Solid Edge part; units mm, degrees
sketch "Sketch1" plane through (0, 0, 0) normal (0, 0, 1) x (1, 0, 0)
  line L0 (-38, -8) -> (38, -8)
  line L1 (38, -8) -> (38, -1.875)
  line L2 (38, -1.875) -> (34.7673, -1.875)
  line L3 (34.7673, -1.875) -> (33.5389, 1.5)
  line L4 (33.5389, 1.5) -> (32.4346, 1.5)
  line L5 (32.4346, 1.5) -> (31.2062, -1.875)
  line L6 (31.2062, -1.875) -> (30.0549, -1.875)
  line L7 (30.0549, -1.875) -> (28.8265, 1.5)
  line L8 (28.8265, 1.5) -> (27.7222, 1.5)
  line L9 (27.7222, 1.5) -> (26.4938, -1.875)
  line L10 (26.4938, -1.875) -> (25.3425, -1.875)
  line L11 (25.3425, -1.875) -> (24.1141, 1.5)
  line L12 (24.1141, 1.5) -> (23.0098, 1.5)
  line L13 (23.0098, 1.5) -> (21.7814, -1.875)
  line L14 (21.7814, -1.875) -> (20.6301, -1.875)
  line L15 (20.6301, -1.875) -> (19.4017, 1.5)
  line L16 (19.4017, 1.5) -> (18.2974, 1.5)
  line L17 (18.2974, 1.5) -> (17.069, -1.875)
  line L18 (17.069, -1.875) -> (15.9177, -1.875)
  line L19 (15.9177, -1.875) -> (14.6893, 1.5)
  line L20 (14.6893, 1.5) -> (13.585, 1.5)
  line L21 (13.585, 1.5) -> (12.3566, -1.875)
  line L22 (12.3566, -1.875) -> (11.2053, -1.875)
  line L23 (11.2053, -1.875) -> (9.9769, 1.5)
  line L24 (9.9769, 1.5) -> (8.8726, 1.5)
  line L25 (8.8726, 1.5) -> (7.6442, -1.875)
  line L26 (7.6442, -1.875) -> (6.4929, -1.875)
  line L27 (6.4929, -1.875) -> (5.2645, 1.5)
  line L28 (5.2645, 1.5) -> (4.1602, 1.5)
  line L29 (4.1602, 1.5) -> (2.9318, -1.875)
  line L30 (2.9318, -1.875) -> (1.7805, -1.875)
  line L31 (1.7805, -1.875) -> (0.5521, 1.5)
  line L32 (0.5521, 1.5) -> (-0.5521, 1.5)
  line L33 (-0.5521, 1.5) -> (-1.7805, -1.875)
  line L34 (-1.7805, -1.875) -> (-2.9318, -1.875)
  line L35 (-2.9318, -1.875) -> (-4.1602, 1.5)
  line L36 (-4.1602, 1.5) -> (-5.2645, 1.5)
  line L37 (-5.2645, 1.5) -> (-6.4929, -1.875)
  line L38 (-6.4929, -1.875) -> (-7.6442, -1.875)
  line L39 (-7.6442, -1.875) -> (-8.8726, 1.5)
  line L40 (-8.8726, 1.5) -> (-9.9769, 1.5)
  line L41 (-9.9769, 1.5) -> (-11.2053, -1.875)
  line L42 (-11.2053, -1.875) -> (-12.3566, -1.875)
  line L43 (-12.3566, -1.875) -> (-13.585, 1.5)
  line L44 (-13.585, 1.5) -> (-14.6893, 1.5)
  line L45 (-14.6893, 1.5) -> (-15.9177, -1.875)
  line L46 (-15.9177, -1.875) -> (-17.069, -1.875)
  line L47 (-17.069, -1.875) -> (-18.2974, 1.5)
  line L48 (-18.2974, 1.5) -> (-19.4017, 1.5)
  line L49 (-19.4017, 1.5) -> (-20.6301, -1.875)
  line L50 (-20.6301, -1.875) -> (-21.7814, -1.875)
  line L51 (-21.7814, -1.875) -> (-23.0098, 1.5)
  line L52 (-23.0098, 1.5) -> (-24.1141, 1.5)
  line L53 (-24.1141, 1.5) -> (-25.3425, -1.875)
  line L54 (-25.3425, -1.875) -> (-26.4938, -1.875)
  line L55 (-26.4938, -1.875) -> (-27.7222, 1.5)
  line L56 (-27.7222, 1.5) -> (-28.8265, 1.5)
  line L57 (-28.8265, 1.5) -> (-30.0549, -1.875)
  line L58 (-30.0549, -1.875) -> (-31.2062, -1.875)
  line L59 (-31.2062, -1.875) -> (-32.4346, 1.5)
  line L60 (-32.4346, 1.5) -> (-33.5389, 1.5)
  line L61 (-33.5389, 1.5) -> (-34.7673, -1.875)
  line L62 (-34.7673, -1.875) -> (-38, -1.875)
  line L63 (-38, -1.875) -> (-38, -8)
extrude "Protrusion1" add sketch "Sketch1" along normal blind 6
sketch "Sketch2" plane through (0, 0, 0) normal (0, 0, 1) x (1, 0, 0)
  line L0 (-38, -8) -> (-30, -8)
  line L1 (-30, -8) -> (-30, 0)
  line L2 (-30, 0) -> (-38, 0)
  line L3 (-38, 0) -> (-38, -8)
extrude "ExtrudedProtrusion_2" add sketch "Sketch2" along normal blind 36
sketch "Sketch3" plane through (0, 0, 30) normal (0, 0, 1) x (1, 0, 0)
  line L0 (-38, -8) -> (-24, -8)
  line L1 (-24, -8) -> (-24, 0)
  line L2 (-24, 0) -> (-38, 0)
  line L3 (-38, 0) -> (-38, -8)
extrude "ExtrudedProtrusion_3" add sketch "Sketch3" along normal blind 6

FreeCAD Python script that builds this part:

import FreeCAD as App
import Part
import Sketcher
Q = App.Units.Quantity

doc = App.newDocument("Part")
body = doc.addObject("PartDesign::Body", "Body")

# Sketch on XY plane
sketch1 = doc.addObject("Sketcher::SketchObject", "Sketch")
body.addObject(sketch1)
sketch1.AttachmentSupport = (doc.XY_Plane, [""])
sketch1.MapMode = "FlatFace"
sketch1.addGeometry([
    Part.LineSegment(App.Vector(-38, -1.9, 0), App.Vector(-38, -8, 0)),  # 0
    Part.LineSegment(App.Vector(-38, -8, 0), App.Vector(38, -8, 0)),  # 1
    Part.LineSegment(App.Vector(38, -8, 0), App.Vector(38, -1.9, 0)),  # 2
    Part.LineSegment(App.Vector(38, -1.9, 0), App.Vector(34.8, -1.9, 0)),  # 3
    Part.LineSegment(App.Vector(34.8, -1.9, 0), App.Vector(33.5, 1.5, 0)),  # 4
    Part.LineSegment(App.Vector(33.5, 1.5, 0), App.Vector(32.4, 1.5, 0)),  # 5
    Part.LineSegment(App.Vector(32.4, 1.5, 0), App.Vector(31.2, -1.9, 0)),  # 6
    Part.LineSegment(App.Vector(31.2, -1.9, 0), App.Vector(30.1, -1.9, 0)),  # 7
    Part.LineSegment(App.Vector(30.1, -1.9, 0), App.Vector(28.8, 1.5, 0)),  # 8
    Part.LineSegment(App.Vector(28.8, 1.5, 0), App.Vector(27.7, 1.5, 0)),  # 9
    Part.LineSegment(App.Vector(27.7, 1.5, 0), App.Vector(26.5, -1.9, 0)),  # 10
    Part.LineSegment(App.Vector(26.5, -1.9, 0), App.Vector(25.3, -1.9, 0)),  # 11
    Part.LineSegment(App.Vector(25.3, -1.9, 0), App.Vector(24.1, 1.5, 0)),  # 12
    Part.LineSegment(App.Vector(24.1, 1.5, 0), App.Vector(23, 1.5, 0)),  # 13
    Part.LineSegment(App.Vector(23, 1.5, 0), App.Vector(21.8, -1.9, 0)),  # 14
    Part.LineSegment(App.Vector(21.8, -1.9, 0), App.Vector(20.6, -1.9, 0)),  # 15
    Part.LineSegment(App.Vector(20.6, -1.9, 0), App.Vector(19.4, 1.5, 0)),  # 16
    Part.LineSegment(App.Vector(19.4, 1.5, 0), App.Vector(18.3, 1.5, 0)),  # 17
    Part.LineSegment(App.Vector(18.3, 1.5, 0), App.Vector(17.1, -1.9, 0)),  # 18
    Part.LineSegment(App.Vector(17.1, -1.9, 0), App.Vector(15.9, -1.9, 0)),  # 19
    Part.LineSegment(App.Vector(15.9, -1.9, 0), App.Vector(14.7, 1.5, 0)),  # 20
    Part.LineSegment(App.Vector(14.7, 1.5, 0), App.Vector(13.6, 1.5, 0)),  # 21
    Part.LineSegment(App.Vector(13.6, 1.5, 0), App.Vector(12.4, -1.9, 0)),  # 22
    Part.LineSegment(App.Vector(12.4, -1.9, 0), App.Vector(11.2, -1.9, 0)),  # 23
    Part.LineSegment(App.Vector(11.2, -1.9, 0), App.Vector(10, 1.5, 0)),  # 24
    Part.LineSegment(App.Vector(10, 1.5, 0), App.Vector(8.9, 1.5, 0)),  # 25
    Part.LineSegment(App.Vector(8.9, 1.5, 0), App.Vector(7.6, -1.9, 0)),  # 26
    Part.LineSegment(App.Vector(7.6, -1.9, 0), App.Vector(6.5, -1.9, 0)),  # 27
    Part.LineSegment(App.Vector(6.5, -1.9, 0), App.Vector(5.3, 1.5, 0)),  # 28
    Part.LineSegment(App.Vector(5.3, 1.5, 0), App.Vector(4.2, 1.5, 0)),  # 29
    Part.LineSegment(App.Vector(4.2, 1.5, 0), App.Vector(2.9, -1.9, 0)),  # 30
    Part.LineSegment(App.Vector(2.9, -1.9, 0), App.Vector(1.8, -1.9, 0)),  # 31
    Part.LineSegment(App.Vector(1.8, -1.9, 0), App.Vector(0.6, 1.5, 0)),  # 32
    Part.LineSegment(App.Vector(0.6, 1.5, 0), App.Vector(-0.6, 1.5, 0)),  # 33
    Part.LineSegment(App.Vector(-0.6, 1.5, 0), App.Vector(-1.8, -1.9, 0)),  # 34
    Part.LineSegment(App.Vector(-1.8, -1.9, 0), App.Vector(-2.9, -1.9, 0)),  # 35
    Part.LineSegment(App.Vector(-2.9, -1.9, 0), App.Vector(-4.2, 1.5, 0)),  # 36
    Part.LineSegment(App.Vector(-4.2, 1.5, 0), App.Vector(-5.3, 1.5, 0)),  # 37
    Part.LineSegment(App.Vector(-5.3, 1.5, 0), App.Vector(-6.5, -1.9, 0)),  # 38
    Part.LineSegment(App.Vector(-6.5, -1.9, 0), App.Vector(-7.6, -1.9, 0)),  # 39
    Part.LineSegment(App.Vector(-7.6, -1.9, 0), App.Vector(-8.9, 1.5, 0)),  # 40
    Part.LineSegment(App.Vector(-8.9, 1.5, 0), App.Vector(-10, 1.5, 0)),  # 41
    Part.LineSegment(App.Vector(-10, 1.5, 0), App.Vector(-11.2, -1.9, 0)),  # 42
    Part.LineSegment(App.Vector(-11.2, -1.9, 0), App.Vector(-12.4, -1.9, 0)),  # 43
    Part.LineSegment(App.Vector(-12.4, -1.9, 0), App.Vector(-13.6, 1.5, 0)),  # 44
    Part.LineSegment(App.Vector(-13.6, 1.5, 0), App.Vector(-14.7, 1.5, 0)),  # 45
    Part.LineSegment(App.Vector(-14.7, 1.5, 0), App.Vector(-15.9, -1.9, 0)),  # 46
    Part.LineSegment(App.Vector(-15.9, -1.9, 0), App.Vector(-17.1, -1.9, 0)),  # 47
    Part.LineSegment(App.Vector(-17.1, -1.9, 0), App.Vector(-18.3, 1.5, 0)),  # 48
    Part.LineSegment(App.Vector(-18.3, 1.5, 0), App.Vector(-19.4, 1.5, 0)),  # 49
    Part.LineSegment(App.Vector(-19.4, 1.5, 0), App.Vector(-20.6, -1.9, 0)),  # 50
    Part.LineSegment(App.Vector(-20.6, -1.9, 0), App.Vector(-21.8, -1.9, 0)),  # 51
    Part.LineSegment(App.Vector(-21.8, -1.9, 0), App.Vector(-23, 1.5, 0)),  # 52
    Part.LineSegment(App.Vector(-23, 1.5, 0), App.Vector(-24.1, 1.5, 0)),  # 53
    Part.LineSegment(App.Vector(-24.1, 1.5, 0), App.Vector(-25.3, -1.9, 0)),  # 54
    Part.LineSegment(App.Vector(-25.3, -1.9, 0), App.Vector(-26.5, -1.9, 0)),  # 55
    Part.LineSegment(App.Vector(-26.5, -1.9, 0), App.Vector(-27.7, 1.5, 0)),  # 56
    Part.LineSegment(App.Vector(-27.7, 1.5, 0), App.Vector(-28.8, 1.5, 0)),  # 57
    Part.LineSegment(App.Vector(-28.8, 1.5, 0), App.Vector(-30.1, -1.9, 0)),  # 58
    Part.LineSegment(App.Vector(-30.1, -1.9, 0), App.Vector(-31.2, -1.9, 0)),  # 59
    Part.LineSegment(App.Vector(-31.2, -1.9, 0), App.Vector(-32.4, 1.5, 0)),  # 60
    Part.LineSegment(App.Vector(-32.4, 1.5, 0), App.Vector(-33.5, 1.5, 0)),  # 61
    Part.LineSegment(App.Vector(-33.5, 1.5, 0), App.Vector(-34.8, -1.9, 0)),  # 62
    Part.LineSegment(App.Vector(-34.8, -1.9, 0), App.Vector(-38, -1.9, 0)),  # 63
], False)
sketch1.addConstraint([
    Sketcher.Constraint("Coincident", 0, 2, 1, 1),
    Sketcher.Constraint("Coincident", 1, 2, 2, 1),
    Sketcher.Constraint("Coincident", 2, 2, 3, 1),
    Sketcher.Constraint("Coincident", 3, 2, 4, 1),
    Sketcher.Constraint("Coincident", 4, 2, 5, 1),
    Sketcher.Constraint("Coincident", 5, 2, 6, 1),
    Sketcher.Constraint("Coincident", 6, 2, 7, 1),
    Sketcher.Constraint("Coincident", 7, 2, 8, 1),
    Sketcher.Constraint("Coincident", 8, 2, 9, 1),
    Sketcher.Constraint("Coincident", 9, 2, 10, 1),
    Sketcher.Constraint("Coincident", 10, 2, 11, 1),
    Sketcher.Constraint("Coincident", 11, 2, 12, 1),
    Sketcher.Constraint("Coincident", 12, 2, 13, 1),
    Sketcher.Constraint("Coincident", 13, 2, 14, 1),
    Sketcher.Constraint("Coincident", 14, 2, 15, 1),
    Sketcher.Constraint("Coincident", 15, 2, 16, 1),
    Sketcher.Constraint("Coincident", 16, 2, 17, 1),
    Sketcher.Constraint("Coincident", 17, 2, 18, 1),
    Sketcher.Constraint("Coincident", 18, 2, 19, 1),
    Sketcher.Constraint("Coincident", 19, 2, 20, 1),
    Sketcher.Constraint("Coincident", 20, 2, 21, 1),
    Sketcher.Constraint("Coincident", 21, 2, 22, 1),
    Sketcher.Constraint("Coincident", 22, 2, 23, 1),
    Sketcher.Constraint("Coincident", 23, 2, 24, 1),
    Sketcher.Constraint("Coincident", 24, 2, 25, 1),
    Sketcher.Constraint("Coincident", 25, 2, 26, 1),
    Sketcher.Constraint("Coincident", 26, 2, 27, 1),
    Sketcher.Constraint("Coincident", 27, 2, 28, 1),
    Sketcher.Constraint("Coincident", 28, 2, 29, 1),
    Sketcher.Constraint("Coincident", 29, 2, 30, 1),
    Sketcher.Constraint("Coincident", 30, 2, 31, 1),
    Sketcher.Constraint("Coincident", 31, 2, 32, 1),
    Sketcher.Constraint("Coincident", 32, 2, 33, 1),
    Sketcher.Constraint("Coincident", 33, 2, 34, 1),
    Sketcher.Constraint("Coincident", 34, 2, 35, 1),
    Sketcher.Constraint("Coincident", 35, 2, 36, 1),
    Sketcher.Constraint("Coincident", 36, 2, 37, 1),
    Sketcher.Constraint("Coincident", 37, 2, 38, 1),
    Sketcher.Constraint("Coincident", 38, 2, 39, 1),
    Sketcher.Constraint("Coincident", 39, 2, 40, 1),
    Sketcher.Constraint("Coincident", 40, 2, 41, 1),
    Sketcher.Constraint("Coincident", 41, 2, 42, 1),
    Sketcher.Constraint("Coincident", 42, 2, 43, 1),
    Sketcher.Constraint("Coincident", 43, 2, 44, 1),
    Sketcher.Constraint("Coincident", 44, 2, 45, 1),
    Sketcher.Constraint("Coincident", 45, 2, 46, 1),
    Sketcher.Constraint("Coincident", 46, 2, 47, 1),
    Sketcher.Constraint("Coincident", 47, 2, 48, 1),
    Sketcher.Constraint("Coincident", 48, 2, 49, 1),
    Sketcher.Constraint("Coincident", 49, 2, 50, 1),
    Sketcher.Constraint("Coincident", 50, 2, 51, 1),
    Sketcher.Constraint("Coincident", 51, 2, 52, 1),
    Sketcher.Constraint("Coincident", 52, 2, 53, 1),
    Sketcher.Constraint("Coincident", 53, 2, 54, 1),
    Sketcher.Constraint("Coincident", 54, 2, 55, 1),
    Sketcher.Constraint("Coincident", 55, 2, 56, 1),
    Sketcher.Constraint("Coincident", 56, 2, 57, 1),
    Sketcher.Constraint("Coincident", 57, 2, 58, 1),
    Sketcher.Constraint("Coincident", 58, 2, 59, 1),
    Sketcher.Constraint("Coincident", 59, 2, 60, 1),
    Sketcher.Constraint("Coincident", 60, 2, 61, 1),
    Sketcher.Constraint("Coincident", 61, 2, 62, 1),
    Sketcher.Constraint("Coincident", 62, 2, 63, 1),
    Sketcher.Constraint("Coincident", 63, 2, 0, 1),
    Sketcher.Constraint("Vertical", 0),
    Sketcher.Constraint("Horizontal", 1),
    Sketcher.Constraint("Vertical", 2),
    Sketcher.Constraint("Horizontal", 3),
    Sketcher.Constraint("Horizontal", 5),
    Sketcher.Constraint("Horizontal", 7),
    Sketcher.Constraint("Horizontal", 9),
    Sketcher.Constraint("Horizontal", 11),
    Sketcher.Constraint("Horizontal", 13),
    Sketcher.Constraint("Horizontal", 15),
    Sketcher.Constraint("Horizontal", 17),
    Sketcher.Constraint("Horizontal", 19),
    Sketcher.Constraint("Horizontal", 21),
    Sketcher.Constraint("Horizontal", 23),
    Sketcher.Constraint("Horizontal", 25),
    Sketcher.Constraint("Horizontal", 27),
    Sketcher.Constraint("Horizontal", 29),
    Sketcher.Constraint("Horizontal", 31),
    Sketcher.Constraint("Horizontal", 33),
    Sketcher.Constraint("Horizontal", 35),
    Sketcher.Constraint("Horizontal", 37),
    Sketcher.Constraint("Horizontal", 39),
    Sketcher.Constraint("Horizontal", 41),
    Sketcher.Constraint("Horizontal", 43),
    Sketcher.Constraint("Horizontal", 45),
    Sketcher.Constraint("Horizontal", 47),
    Sketcher.Constraint("Horizontal", 49),
    Sketcher.Constraint("Horizontal", 51),
    Sketcher.Constraint("Horizontal", 53),
    Sketcher.Constraint("Horizontal", 55),
    Sketcher.Constraint("Horizontal", 57),
    Sketcher.Constraint("Horizontal", 59),
    Sketcher.Constraint("Horizontal", 61),
    Sketcher.Constraint("Horizontal", 63),
    Sketcher.Constraint("Symmetric", 31, 2, 34, 2, -2),
    Sketcher.Constraint("Symmetric", 29, 2, 36, 2, -2),
    Sketcher.Constraint("Symmetric", 27, 2, 38, 2, -2),
    Sketcher.Constraint("Symmetric", 25, 2, 40, 2, -2),
    Sketcher.Constraint("Symmetric", 23, 2, 42, 2, -2),
    Sketcher.Constraint("Symmetric", 21, 2, 44, 2, -2),
    Sketcher.Constraint("Symmetric", 19, 2, 46, 2, -2),
    Sketcher.Constraint("Symmetric", 17, 2, 48, 2, -2),
    Sketcher.Constraint("Symmetric", 15, 2, 50, 2, -2),
    Sketcher.Constraint("Symmetric", 13, 2, 52, 2, -2),
    Sketcher.Constraint("Symmetric", 11, 2, 54, 2, -2),
    Sketcher.Constraint("Symmetric", 9, 2, 56, 2, -2),
    Sketcher.Constraint("Symmetric", 7, 2, 58, 2, -2),
    Sketcher.Constraint("Symmetric", 5, 2, 60, 2, -2),
    Sketcher.Constraint("Symmetric", 3, 2, 62, 2, -2),
    Sketcher.Constraint("Parallel", 4, 8),
    Sketcher.Constraint("Parallel", 6, 10),
    Sketcher.Constraint("Parallel", 8, 12),
    Sketcher.Constraint("Parallel", 10, 14),
    Sketcher.Constraint("Parallel", 12, 16),
    Sketcher.Constraint("Parallel", 14, 18),
    Sketcher.Constraint("Parallel", 16, 20),
    Sketcher.Constraint("Parallel", 18, 22),
    Sketcher.Constraint("Parallel", 20, 24),
    Sketcher.Constraint("Parallel", 22, 26),
    Sketcher.Constraint("Parallel", 24, 28),
    Sketcher.Constraint("Parallel", 26, 30),
    Sketcher.Constraint("Parallel", 28, 32),
    Sketcher.Constraint("Parallel", 30, 34),
    Sketcher.Constraint("Parallel", 32, 36),
    Sketcher.Constraint("Parallel", 34, 38),
    Sketcher.Constraint("Parallel", 36, 40),
    Sketcher.Constraint("Parallel", 38, 42),
    Sketcher.Constraint("Parallel", 40, 44),
    Sketcher.Constraint("Parallel", 42, 46),
    Sketcher.Constraint("Parallel", 44, 48),
    Sketcher.Constraint("Parallel", 46, 50),
    Sketcher.Constraint("Parallel", 48, 52),
    Sketcher.Constraint("Parallel", 50, 54),
    Sketcher.Constraint("Parallel", 52, 56),
    Sketcher.Constraint("Parallel", 54, 58),
    Sketcher.Constraint("Parallel", 56, 60),
    Sketcher.Constraint("Parallel", 58, 62),
    Sketcher.Constraint("Horizontal", 3, 2, 6, 2),
    Sketcher.Constraint("Horizontal", 5, 2, 8, 2),
    Sketcher.Constraint("Horizontal", 7, 2, 10, 2),
    Sketcher.Constraint("Horizontal", 9, 2, 12, 2),
    Sketcher.Constraint("Horizontal", 11, 2, 14, 2),
    Sketcher.Constraint("Horizontal", 13, 2, 16, 2),
    Sketcher.Constraint("Horizontal", 15, 2, 18, 2),
    Sketcher.Constraint("Horizontal", 17, 2, 20, 2),
    Sketcher.Constraint("Horizontal", 19, 2, 22, 2),
    Sketcher.Constraint("Horizontal", 21, 2, 24, 2),
    Sketcher.Constraint("Horizontal", 23, 2, 26, 2),
    Sketcher.Constraint("Horizontal", 25, 2, 28, 2),
    Sketcher.Constraint("Horizontal", 27, 2, 30, 2),
    Sketcher.Constraint("Horizontal", 29, 2, 32, 2),
    Sketcher.Constraint("Equal", 5, 9),
    Sketcher.Constraint("Equal", 7, 11),
    Sketcher.Constraint("Equal", 9, 13),
    Sketcher.Constraint("Equal", 11, 15),
    Sketcher.Constraint("Equal", 13, 17),
    Sketcher.Constraint("Equal", 15, 19),
    Sketcher.Constraint("Equal", 17, 21),
    Sketcher.Constraint("Equal", 19, 23),
    Sketcher.Constraint("Equal", 21, 25),
    Sketcher.Constraint("Equal", 23, 27),
    Sketcher.Constraint("Equal", 25, 29),
    Sketcher.Constraint("Equal", 27, 31),
    Sketcher.Constraint("Equal", 29, 33),
    Sketcher.Constraint("Equal", 31, 35),
    Sketcher.Constraint("Equal", 3, 63),
    Sketcher.Constraint("DistanceX", 1, 1, 1, 2, Q("76 mm")),
    Sketcher.Constraint("Angle", 4, Q("110 deg")),
    Sketcher.Constraint("DistanceY", 0, 2, -1, 1, Q("8 mm")),
    Sketcher.Constraint("DistanceY", -1, 1, 4, 2, Q("1.5 mm")),
    Sketcher.Constraint("DistanceY", 0, 2, 0, 1, Q("6.125 mm")),
    Sketcher.Constraint("DistanceX", -1, 1, 15, 2, Q("20.63 mm")),
    Sketcher.Constraint("DistanceX", 3, 2, 3, 1, Q("3.2327 mm")),
])
pad1 = doc.addObject("PartDesign::Pad", "Pad")
body.addObject(pad1)
pad1.Profile = sketch1
pad1.Length = 6

# Sketch on XY plane
sketch2 = doc.addObject("Sketcher::SketchObject", "Sketch001")
body.addObject(sketch2)
sketch2.AttachmentSupport = (doc.XY_Plane, [""])
sketch2.MapMode = "FlatFace"
sketch2.addGeometry([
    Part.LineSegment(App.Vector(-38, 0, 0), App.Vector(-38, -8, 0)),
    Part.LineSegment(App.Vector(-38, -8, 0), App.Vector(-30, -8, 0)),
    Part.LineSegment(App.Vector(-30, -8, 0), App.Vector(-30, 0, 0)),
    Part.LineSegment(App.Vector(-30, 0, 0), App.Vector(-38, 0, 0)),
], False)
sketch2.addConstraint([
    Sketcher.Constraint("Coincident", 0, 2, 1, 1),
    Sketcher.Constraint("Coincident", 1, 2, 2, 1),
    Sketcher.Constraint("Coincident", 2, 2, 3, 1),
    Sketcher.Constraint("Coincident", 3, 2, 0, 1),
    Sketcher.Constraint("Vertical", 0),
    Sketcher.Constraint("Horizontal", 1),
    Sketcher.Constraint("Vertical", 2),
    Sketcher.Constraint("Horizontal", 3),
    Sketcher.Constraint("PointOnObject", 2, 2, -1),
    Sketcher.Constraint("Equal", 3, 0),
    Sketcher.Constraint("DistanceX", 1, 1, 1, 2, Q("8 mm")),
    Sketcher.Constraint("DistanceX", 0, 2, -1, 1, Q("38 mm")),
])
pad2 = doc.addObject("PartDesign::Pad", "Pad001")
body.addObject(pad2)
pad2.Profile = sketch2
pad2.Length = 36

# Sketch on XY plane
sketch3 = doc.addObject("Sketcher::SketchObject", "Sketch002")
body.addObject(sketch3)
sketch3.AttachmentSupport = (doc.XY_Plane, [""])
sketch3.MapMode = "FlatFace"
sketch3.AttachmentOffset = App.Placement(App.Vector(0, 0, 30), App.Rotation())
sketch3.addGeometry([
    Part.LineSegment(App.Vector(-38, 0, 0), App.Vector(-38, -8, 0)),
    Part.LineSegment(App.Vector(-38, -8, 0), App.Vector(-24, -8, 0)),
    Part.LineSegment(App.Vector(-24, -8, 0), App.Vector(-24, 0, 0)),
    Part.LineSegment(App.Vector(-24, 0, 0), App.Vector(-38, 0, 0)),
], False)
sketch3.addConstraint([
    Sketcher.Constraint("Coincident", 0, 2, 1, 1),
    Sketcher.Constraint("Coincident", 1, 2, 2, 1),
    Sketcher.Constraint("Coincident", 2, 2, 3, 1),
    Sketcher.Constraint("Coincident", 3, 2, 0, 1),
    Sketcher.Constraint("Vertical", 0),
    Sketcher.Constraint("Horizontal", 1),
    Sketcher.Constraint("Vertical", 2),
    Sketcher.Constraint("Horizontal", 3),
    Sketcher.Constraint("PointOnObject", 2, 2, -1),
    Sketcher.Constraint("DistanceX", 1, 1, 1, 2, Q("14 mm")),
    Sketcher.Constraint("DistanceY", 0, 2, 0, 1, Q("8 mm")),
    Sketcher.Constraint("DistanceX", 0, 2, -1, 1, Q("38 mm")),
])
pad3 = doc.addObject("PartDesign::Pad", "Pad002")
body.addObject(pad3)
pad3.Profile = sketch3
pad3.Length = 6

doc.recompute()
